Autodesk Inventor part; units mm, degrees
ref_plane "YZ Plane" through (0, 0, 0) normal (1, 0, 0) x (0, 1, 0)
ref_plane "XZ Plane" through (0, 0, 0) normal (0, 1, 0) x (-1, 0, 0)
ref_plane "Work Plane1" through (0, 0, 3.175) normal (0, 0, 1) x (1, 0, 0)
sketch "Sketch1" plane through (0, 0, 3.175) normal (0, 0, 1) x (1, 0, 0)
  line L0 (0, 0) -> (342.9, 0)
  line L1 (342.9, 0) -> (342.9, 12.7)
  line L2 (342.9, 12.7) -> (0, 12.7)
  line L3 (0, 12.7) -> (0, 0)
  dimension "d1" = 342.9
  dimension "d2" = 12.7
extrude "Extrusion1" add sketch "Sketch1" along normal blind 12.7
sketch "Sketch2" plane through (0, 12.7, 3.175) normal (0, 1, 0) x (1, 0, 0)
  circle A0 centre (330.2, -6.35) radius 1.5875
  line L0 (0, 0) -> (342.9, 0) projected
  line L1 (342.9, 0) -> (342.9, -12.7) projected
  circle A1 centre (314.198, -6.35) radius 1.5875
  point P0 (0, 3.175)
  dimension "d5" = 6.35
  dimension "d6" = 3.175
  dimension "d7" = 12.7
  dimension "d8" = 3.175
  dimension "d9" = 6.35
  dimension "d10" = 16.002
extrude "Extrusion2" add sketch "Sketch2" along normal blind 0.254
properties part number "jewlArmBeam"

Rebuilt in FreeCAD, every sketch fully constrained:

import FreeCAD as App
import Part
import Sketcher

V = App.Vector
Q = App.Units.Quantity

doc = App.newDocument("Part")
body = doc.addObject("PartDesign::Body", "Body")

# Sketch on XY plane
sketch1 = body.newObject("Sketcher::SketchObject", "Sketch")
sketch1.AttachmentSupport = (doc.getObject("XY_Plane"), [""])
sketch1.MapMode = "FlatFace"
sketch1.AttachmentOffset = App.Placement(V(0, 0, 0.125 * 25.4), App.Rotation())
sketch1.addGeometry([
    Part.LineSegment(V(0, 13, 0), V(0, 0, 0)),
    Part.LineSegment(V(0, 0, 0), V(343, 0, 0)),
    Part.LineSegment(V(343, 0, 0), V(343, 13, 0)),
    Part.LineSegment(V(343, 13, 0), V(0, 13, 0)),
], False)
sketch1.addConstraint([
    Sketcher.Constraint("Coincident", 0, 2, 1, 1),
    Sketcher.Constraint("Coincident", 1, 2, 2, 1),
    Sketcher.Constraint("Coincident", 2, 2, 3, 1),
    Sketcher.Constraint("Coincident", 3, 2, 0, 1),
    Sketcher.Constraint("Vertical", 0),
    Sketcher.Constraint("Horizontal", 1),
    Sketcher.Constraint("Vertical", 2),
    Sketcher.Constraint("Horizontal", 3),
    Sketcher.Constraint("Coincident", 0, 2, -1, 1),
    Sketcher.Constraint("DistanceX", 1, 1, 1, 2, Q("13.5 in")),
    Sketcher.Constraint("DistanceY", 0, 2, 0, 1, Q("0.5 in")),
])
pad1 = body.newObject("PartDesign::Pad", "Pad")
pad1.Profile = sketch1
pad1.Length = Q("0.5 in")

# Sketch on XZ plane
sketch2 = body.newObject("Sketcher::SketchObject", "Sketch001")
sketch2.AttachmentSupport = (doc.getObject("XZ_Plane"), [""])
sketch2.MapMode = "FlatFace"
sketch2.AttachmentOffset = App.Placement(V(0, 0, -0.5 * 25.4), App.Rotation())
sketch2.addGeometry([
    Part.Circle(V(330.2, 9.5, 0), V(0, 0, 1), 1.6),
    Part.Circle(V(314.2, 9.5, 0), V(0, 0, 1), 1.6),
], False)
sketch2.addConstraint([
    Sketcher.Constraint("Equal", 0, 1),
    Sketcher.Constraint("Horizontal", 0, 3, 1, 3),
    Sketcher.Constraint("Diameter", 0, Q("0.125 in")),
    Sketcher.Constraint("DistanceX", 1, 3, 0, 3, Q("0.63 in")),
    Sketcher.Constraint("DistanceX", -1, 1, 0, 3, Q("13 in")),
    Sketcher.Constraint("DistanceY", -1, 1, 0, 3, Q("0.375 in")),
])
pad2 = body.newObject("PartDesign::Pad", "Pad001")
pad2.Profile = sketch2
pad2.Length = Q("0.01 in")
pad2.Reversed = True

doc.recompute()
